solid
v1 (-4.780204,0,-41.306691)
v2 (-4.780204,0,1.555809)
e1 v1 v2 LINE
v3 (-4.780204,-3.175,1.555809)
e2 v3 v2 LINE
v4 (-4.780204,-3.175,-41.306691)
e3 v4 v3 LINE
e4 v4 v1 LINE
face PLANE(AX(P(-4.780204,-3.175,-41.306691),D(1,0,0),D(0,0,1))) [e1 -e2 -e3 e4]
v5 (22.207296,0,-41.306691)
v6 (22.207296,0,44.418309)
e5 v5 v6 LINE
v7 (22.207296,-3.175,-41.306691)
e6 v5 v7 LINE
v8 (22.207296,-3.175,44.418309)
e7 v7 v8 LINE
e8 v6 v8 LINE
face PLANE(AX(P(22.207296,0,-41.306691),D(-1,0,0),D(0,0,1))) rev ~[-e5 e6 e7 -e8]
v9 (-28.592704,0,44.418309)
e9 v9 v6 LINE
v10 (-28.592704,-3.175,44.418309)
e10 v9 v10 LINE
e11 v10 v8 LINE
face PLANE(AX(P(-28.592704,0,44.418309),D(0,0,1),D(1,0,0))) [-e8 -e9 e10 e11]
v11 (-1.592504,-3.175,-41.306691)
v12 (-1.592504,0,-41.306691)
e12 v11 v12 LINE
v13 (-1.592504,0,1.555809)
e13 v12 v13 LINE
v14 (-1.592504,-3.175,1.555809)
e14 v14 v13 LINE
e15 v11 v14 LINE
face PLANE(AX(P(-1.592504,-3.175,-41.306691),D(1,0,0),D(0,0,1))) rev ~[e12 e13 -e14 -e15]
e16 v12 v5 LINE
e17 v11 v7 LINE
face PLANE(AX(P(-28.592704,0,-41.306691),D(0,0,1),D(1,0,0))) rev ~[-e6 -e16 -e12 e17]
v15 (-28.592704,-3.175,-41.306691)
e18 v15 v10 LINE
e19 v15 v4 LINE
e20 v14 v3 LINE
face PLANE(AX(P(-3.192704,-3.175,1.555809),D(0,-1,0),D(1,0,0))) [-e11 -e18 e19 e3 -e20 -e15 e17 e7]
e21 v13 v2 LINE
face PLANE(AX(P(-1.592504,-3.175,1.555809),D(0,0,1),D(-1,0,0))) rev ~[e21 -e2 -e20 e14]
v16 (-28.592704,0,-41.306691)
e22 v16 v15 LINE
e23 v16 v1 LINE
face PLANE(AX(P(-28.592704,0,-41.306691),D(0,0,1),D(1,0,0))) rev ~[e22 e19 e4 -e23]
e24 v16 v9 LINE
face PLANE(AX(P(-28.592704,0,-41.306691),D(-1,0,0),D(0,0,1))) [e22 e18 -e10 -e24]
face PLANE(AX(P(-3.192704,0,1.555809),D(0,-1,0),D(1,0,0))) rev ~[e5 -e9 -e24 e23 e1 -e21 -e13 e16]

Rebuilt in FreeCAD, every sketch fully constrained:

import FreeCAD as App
import Part
import Sketcher

V = App.Vector
Q = App.Units.Quantity

doc = App.newDocument("Part")
body = doc.addObject("PartDesign::Body", "Body")

sketch1 = doc.addObject("Sketcher::SketchObject", "Sketch")
body.addObject(sketch1)
sketch1.AttachmentSupport = (doc.XZ_Plane, [""])
sketch1.MapMode = "FlatFace"
sketch1.addGeometry([
    Part.LineSegment(V(-29, 44, 0), V(-29, -41, 0)),
    Part.LineSegment(V(-29, -41, 0), V(22, -41, 0)),
    Part.LineSegment(V(22, -41, 0), V(22, 44, 0)),
    Part.LineSegment(V(22, 44, 0), V(-29, 44, 0)),
], False)
sketch1.addConstraint([
    Sketcher.Constraint("Coincident", 0, 2, 1, 1),
    Sketcher.Constraint("Coincident", 1, 2, 2, 1),
    Sketcher.Constraint("Coincident", 2, 2, 3, 1),
    Sketcher.Constraint("Coincident", 3, 2, 0, 1),
    Sketcher.Constraint("Vertical", 0),
    Sketcher.Constraint("Horizontal", 1),
    Sketcher.Constraint("Vertical", 2),
    Sketcher.Constraint("Horizontal", 3),
    Sketcher.Constraint("DistanceX", 1, 1, 1, 2, Q("2 in")),
    Sketcher.Constraint("DistanceY", 0, 2, 0, 1, Q("3.375 in")),
    Sketcher.Constraint("DistanceY", 0, 2, -1, 1, 41.306691),
    Sketcher.Constraint("DistanceX", 0, 2, -1, 1, 28.592704),
])
pad1 = doc.addObject("PartDesign::Pad", "Pad")
body.addObject(pad1)
pad1.Profile = sketch1
pad1.Length = Q("0.125 in")

sketch2 = doc.addObject("Sketcher::SketchObject", "Sketch001")
body.addObject(sketch2)
sketch2.AttachmentSupport = (doc.XZ_Plane, [""])
sketch2.MapMode = "FlatFace"
sketch2.AttachmentOffset = App.Placement(V(0, 0, 0.125 * 25.4), App.Rotation())
sketch2.addGeometry([
    Part.LineSegment(V(-4.8, 1.6, 0), V(-4.8, -41.3, 0)),
    Part.LineSegment(V(-4.8, -41.3, 0), V(-1.6, -41.3, 0)),
    Part.LineSegment(V(-1.6, -41.3, 0), V(-1.6, 1.6, 0)),
    Part.LineSegment(V(-1.6, 1.6, 0), V(-4.8, 1.6, 0)),
], False)
sketch2.addConstraint([
    Sketcher.Constraint("Coincident", 0, 2, 1, 1),
    Sketcher.Constraint("Coincident", 1, 2, 2, 1),
    Sketcher.Constraint("Coincident", 2, 2, 3, 1),
    Sketcher.Constraint("Coincident", 3, 2, 0, 1),
    Sketcher.Constraint("Vertical", 0),
    Sketcher.Constraint("Horizontal", 1),
    Sketcher.Constraint("Vertical", 2),
    Sketcher.Constraint("Horizontal", 3),
    Sketcher.Constraint("DistanceY", 0, 2, 0, 1, Q("1.6875 in")),
    Sketcher.Constraint("DistanceX", 1, 1, 1, 2, Q("0.1255 in")),
    Sketcher.Constraint("DistanceY", 0, 2, -1, 1, 41.306691),
    Sketcher.Constraint("DistanceX", 0, 2, -1, 1, 4.780204),
])
pocket1 = doc.addObject("PartDesign::Pocket", "Pocket")
body.addObject(pocket1)
pocket1.Profile = sketch2
pocket1.Type = "ThroughAll"

doc.recompute()
